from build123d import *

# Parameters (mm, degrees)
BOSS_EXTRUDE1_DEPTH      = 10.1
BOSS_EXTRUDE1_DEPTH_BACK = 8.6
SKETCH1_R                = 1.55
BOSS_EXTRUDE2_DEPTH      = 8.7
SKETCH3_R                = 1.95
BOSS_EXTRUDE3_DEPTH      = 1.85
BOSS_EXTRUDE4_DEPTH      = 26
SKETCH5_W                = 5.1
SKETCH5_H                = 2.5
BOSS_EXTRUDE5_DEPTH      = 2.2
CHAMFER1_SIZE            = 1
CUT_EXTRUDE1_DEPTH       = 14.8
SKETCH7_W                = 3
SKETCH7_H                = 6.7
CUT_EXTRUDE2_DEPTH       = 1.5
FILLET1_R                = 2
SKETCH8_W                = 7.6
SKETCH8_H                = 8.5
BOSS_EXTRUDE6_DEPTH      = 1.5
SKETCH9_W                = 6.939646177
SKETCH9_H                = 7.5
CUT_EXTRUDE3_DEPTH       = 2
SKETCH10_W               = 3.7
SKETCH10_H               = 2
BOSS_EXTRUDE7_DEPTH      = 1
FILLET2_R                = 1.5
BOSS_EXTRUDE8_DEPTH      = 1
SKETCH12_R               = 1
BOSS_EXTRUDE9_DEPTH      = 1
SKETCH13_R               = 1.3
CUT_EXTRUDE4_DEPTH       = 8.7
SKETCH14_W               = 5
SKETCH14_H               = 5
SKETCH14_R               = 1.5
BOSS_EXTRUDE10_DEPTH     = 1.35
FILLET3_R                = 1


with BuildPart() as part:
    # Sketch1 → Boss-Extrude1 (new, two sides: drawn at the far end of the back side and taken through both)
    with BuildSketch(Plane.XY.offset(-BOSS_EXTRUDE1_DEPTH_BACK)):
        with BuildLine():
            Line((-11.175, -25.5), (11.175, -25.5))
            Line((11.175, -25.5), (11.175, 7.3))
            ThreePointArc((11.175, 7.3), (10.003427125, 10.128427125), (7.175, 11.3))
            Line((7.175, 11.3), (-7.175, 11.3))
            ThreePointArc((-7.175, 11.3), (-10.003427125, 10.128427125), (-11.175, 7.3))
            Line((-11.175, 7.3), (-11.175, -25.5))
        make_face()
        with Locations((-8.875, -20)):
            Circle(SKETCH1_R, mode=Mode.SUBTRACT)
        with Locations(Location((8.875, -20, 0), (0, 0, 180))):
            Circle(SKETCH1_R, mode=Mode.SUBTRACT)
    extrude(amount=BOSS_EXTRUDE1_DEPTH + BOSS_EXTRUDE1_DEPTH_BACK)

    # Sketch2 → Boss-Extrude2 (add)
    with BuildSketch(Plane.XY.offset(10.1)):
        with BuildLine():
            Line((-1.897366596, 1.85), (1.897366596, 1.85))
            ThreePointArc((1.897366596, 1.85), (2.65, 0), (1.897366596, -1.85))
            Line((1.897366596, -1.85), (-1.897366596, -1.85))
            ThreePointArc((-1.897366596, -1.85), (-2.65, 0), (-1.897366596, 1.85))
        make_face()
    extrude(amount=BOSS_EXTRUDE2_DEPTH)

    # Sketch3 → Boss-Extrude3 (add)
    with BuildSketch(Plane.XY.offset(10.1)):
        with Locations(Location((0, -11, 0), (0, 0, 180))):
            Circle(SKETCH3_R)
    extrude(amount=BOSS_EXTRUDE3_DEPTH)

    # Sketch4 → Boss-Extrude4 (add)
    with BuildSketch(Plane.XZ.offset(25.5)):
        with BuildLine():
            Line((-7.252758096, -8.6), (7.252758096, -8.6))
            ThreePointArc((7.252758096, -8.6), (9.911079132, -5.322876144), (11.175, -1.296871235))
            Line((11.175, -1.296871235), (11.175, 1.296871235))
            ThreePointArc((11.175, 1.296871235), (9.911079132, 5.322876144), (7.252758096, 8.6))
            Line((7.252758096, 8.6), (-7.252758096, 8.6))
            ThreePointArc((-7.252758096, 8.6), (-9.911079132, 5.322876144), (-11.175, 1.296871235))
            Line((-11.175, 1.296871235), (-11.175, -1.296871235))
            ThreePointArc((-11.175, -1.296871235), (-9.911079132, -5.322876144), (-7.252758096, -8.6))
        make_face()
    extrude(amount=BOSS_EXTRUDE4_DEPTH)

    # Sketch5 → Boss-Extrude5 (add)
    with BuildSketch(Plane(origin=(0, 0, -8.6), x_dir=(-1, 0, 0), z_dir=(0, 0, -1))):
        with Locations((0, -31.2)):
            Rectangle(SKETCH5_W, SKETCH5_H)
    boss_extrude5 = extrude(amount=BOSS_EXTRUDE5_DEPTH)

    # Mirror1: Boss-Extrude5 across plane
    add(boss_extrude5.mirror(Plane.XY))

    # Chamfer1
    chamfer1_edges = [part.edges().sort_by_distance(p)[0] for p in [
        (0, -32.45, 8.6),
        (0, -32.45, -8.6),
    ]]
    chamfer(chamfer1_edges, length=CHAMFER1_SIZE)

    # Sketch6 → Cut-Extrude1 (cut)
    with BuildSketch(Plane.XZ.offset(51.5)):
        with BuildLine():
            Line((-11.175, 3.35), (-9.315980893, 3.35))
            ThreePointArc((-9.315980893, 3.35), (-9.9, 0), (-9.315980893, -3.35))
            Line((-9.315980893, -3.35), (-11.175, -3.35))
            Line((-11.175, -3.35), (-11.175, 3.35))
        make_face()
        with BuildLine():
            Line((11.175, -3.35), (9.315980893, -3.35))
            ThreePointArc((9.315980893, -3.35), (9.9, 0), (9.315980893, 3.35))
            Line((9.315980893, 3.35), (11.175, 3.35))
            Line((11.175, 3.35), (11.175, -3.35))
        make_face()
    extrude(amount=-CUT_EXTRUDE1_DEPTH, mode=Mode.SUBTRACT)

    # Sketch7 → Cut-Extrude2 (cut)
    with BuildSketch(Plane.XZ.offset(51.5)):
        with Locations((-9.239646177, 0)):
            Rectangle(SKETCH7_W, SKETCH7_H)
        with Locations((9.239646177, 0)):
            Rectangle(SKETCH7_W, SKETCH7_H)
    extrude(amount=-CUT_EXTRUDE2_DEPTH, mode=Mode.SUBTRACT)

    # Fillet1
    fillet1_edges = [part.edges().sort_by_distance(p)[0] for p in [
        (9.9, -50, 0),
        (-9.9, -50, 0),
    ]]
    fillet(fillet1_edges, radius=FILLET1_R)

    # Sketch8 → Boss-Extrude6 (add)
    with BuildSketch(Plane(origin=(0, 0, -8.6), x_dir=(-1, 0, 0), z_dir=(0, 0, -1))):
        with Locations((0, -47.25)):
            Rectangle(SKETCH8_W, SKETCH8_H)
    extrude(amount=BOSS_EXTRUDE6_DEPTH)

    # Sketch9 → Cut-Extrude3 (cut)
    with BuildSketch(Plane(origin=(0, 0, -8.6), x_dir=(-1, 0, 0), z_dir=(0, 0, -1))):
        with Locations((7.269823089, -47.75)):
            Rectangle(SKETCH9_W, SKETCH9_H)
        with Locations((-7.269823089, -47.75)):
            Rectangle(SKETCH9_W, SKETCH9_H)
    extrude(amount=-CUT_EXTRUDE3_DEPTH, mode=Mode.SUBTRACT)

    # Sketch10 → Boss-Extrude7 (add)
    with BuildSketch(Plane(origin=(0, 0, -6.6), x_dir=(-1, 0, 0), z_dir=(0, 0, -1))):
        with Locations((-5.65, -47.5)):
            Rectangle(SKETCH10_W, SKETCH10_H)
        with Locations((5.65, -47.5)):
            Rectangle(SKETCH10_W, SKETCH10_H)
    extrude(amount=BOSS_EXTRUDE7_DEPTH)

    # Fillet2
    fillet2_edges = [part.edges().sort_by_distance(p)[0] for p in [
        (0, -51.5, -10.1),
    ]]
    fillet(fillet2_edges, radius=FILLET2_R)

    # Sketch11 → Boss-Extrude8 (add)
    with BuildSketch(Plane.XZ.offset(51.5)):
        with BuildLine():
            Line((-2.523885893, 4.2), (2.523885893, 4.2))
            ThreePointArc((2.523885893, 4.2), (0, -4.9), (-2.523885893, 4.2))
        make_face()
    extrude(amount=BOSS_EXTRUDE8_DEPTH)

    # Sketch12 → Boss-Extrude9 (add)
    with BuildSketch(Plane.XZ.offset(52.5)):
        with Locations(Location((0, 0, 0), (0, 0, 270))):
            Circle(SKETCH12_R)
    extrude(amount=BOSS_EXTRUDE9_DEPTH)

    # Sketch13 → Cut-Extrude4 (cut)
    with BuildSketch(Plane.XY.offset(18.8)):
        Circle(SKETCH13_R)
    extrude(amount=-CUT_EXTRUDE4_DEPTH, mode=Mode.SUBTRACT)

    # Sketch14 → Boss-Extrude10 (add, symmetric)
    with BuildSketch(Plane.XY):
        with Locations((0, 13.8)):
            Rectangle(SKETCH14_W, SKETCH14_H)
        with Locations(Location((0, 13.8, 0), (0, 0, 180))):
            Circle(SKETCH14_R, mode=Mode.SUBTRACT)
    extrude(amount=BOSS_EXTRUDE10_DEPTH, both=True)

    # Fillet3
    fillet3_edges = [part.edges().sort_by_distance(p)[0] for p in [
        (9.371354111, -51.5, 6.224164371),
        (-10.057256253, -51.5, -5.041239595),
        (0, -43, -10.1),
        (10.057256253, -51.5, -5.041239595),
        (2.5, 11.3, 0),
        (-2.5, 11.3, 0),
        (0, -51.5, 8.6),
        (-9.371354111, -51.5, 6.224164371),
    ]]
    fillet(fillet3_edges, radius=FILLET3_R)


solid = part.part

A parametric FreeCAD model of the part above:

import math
import FreeCAD as App
import Part
import Sketcher

V = App.Vector
Q = App.Units.Quantity


def edges_at(feature, points):
    """Names of the edges that pass closest to the given points."""
    edges = feature.Shape.Edges
    near = lambda p: min(range(len(edges)), key=lambda i: edges[i].distToShape(Part.Vertex(*p))[0])
    return sorted({f"Edge{near(p) + 1}" for p in points})

doc = App.newDocument("Part")
params = doc.addObject("Spreadsheet::Sheet", "Params")
for row, (alias, value) in enumerate([
    ("sketch1_radius", "4 mm"),
    ("sketch1_diameter", "3.1 mm"),
    ("sketch1_height", "32.8 mm"),
    ("sketch1_width", "22.35 mm"),
    ("pad1_length", "10.1 mm"),
    ("pad1_length2", "8.6 mm"),
    ("sketch2_radius", "2.65 mm"),
    ("pad2_length", "8.7 mm"),
    ("sketch3_diameter", "3.9 mm"),
    ("pad3_length", "1.85 mm"),
    ("sketch4_radius", "11.25 mm"),
    ("pad4_length", "26 mm"),
    ("sketch5_width", "5.1 mm"),
    ("sketch5_height", "2.5 mm"),
    ("pad5_length", "2.2 mm"),
    ("chamfer_size", "1 mm"),
    ("sketch6_radius", "9.9 mm"),
    ("sketch6_height", "6.7 mm"),
    ("pocket1_length", "14.8 mm"),
    ("sketch7_width", "3 mm"),
    ("sketch7_height", "6.7 mm"),
    ("pocket2_length", "1.5 mm"),
    ("fillet_radius", "2 mm"),
    ("sketch8_width", "7.6 mm"),
    ("sketch8_height", "8.5 mm"),
    ("pad6_length", "1.5 mm"),
    ("sketch9_height", "7.5 mm"),
    ("pocket3_length", "2 mm"),
    ("sketch10_height", "2 mm"),
    ("sketch10_width", "3.7 mm"),
    ("pad7_length", "1 mm"),
    ("fillet2_radius", "1.5 mm"),
    ("sketch11_radius", "4.9 mm"),
    ("pad8_length", "1 mm"),
    ("sketch12_diameter", "2 mm"),
    ("pad9_length", "1 mm"),
    ("sketch13_diameter", "2.6 mm"),
    ("pocket4_length", "8.7 mm"),
    ("sketch14_diameter", "3 mm"),
    ("sketch14_width", "5 mm"),
    ("pad10_length", "2.7 mm"),
    ("fillet3_radius", "1 mm"),
], start=1):
    params.set(f"A{row}", alias)
    params.set(f"B{row}", "=" + value)
    params.setAlias(f"B{row}", alias)

body = doc.addObject("PartDesign::Body", "Body")

sketch1 = body.newObject("Sketcher::SketchObject", "Sketch")
sketch1.AttachmentSupport = (doc.getObject("XY_Plane"), [""])
sketch1.MapMode = "FlatFace"
sketch1.addGeometry([
    Part.LineSegment(V(-11.175, -25.5, 0), V(11.175, -25.5, 0)),
    Part.LineSegment(V(11.175, -25.5, 0), V(11.175, 7.3, 0)),
    Part.ArcOfCircle(Part.Circle(V(7.175, 7.3, 0), V(0, 0, 1), 4), math.radians(0), math.radians(90)),
    Part.LineSegment(V(7.175, 11.3, 0), V(-7.175, 11.3, 0)),
    Part.ArcOfCircle(Part.Circle(V(-7.175, 7.3, 0), V(0, 0, 1), 4), math.radians(90), math.radians(180)),
    Part.LineSegment(V(-11.175, 7.3, 0), V(-11.175, -25.5, 0)),
    Part.Circle(V(-8.875, -20, 0), V(0, 0, 1), 1.55),
    Part.Circle(V(8.875, -20, 0), V(0, 0, 1), 1.55),
], False)
sketch1.addConstraint([
    Sketcher.Constraint("Coincident", 0, 2, 1, 1),
    Sketcher.Constraint("Tangent", 1, 2, 2, 1),
    Sketcher.Constraint("Tangent", 2, 2, 3, 1),
    Sketcher.Constraint("Tangent", 3, 2, 4, 1),
    Sketcher.Constraint("Tangent", 4, 2, 5, 1),
    Sketcher.Constraint("Coincident", 5, 2, 0, 1),
    Sketcher.Constraint("Horizontal", 0),
    Sketcher.Constraint("Vertical", 1),
    Sketcher.Constraint("Horizontal", 3),
    Sketcher.Constraint("Vertical", 5),
    Sketcher.Constraint("Equal", 2, 4),
    Sketcher.Constraint("Equal", 6, 7),
    Sketcher.Constraint("Symmetric", 6, 3, 7, 3, -2),
    Sketcher.Constraint("Radius", 2, Q("4 mm")),
    Sketcher.Constraint("Diameter", 6, Q("3.1 mm")),
    Sketcher.Constraint("DistanceY", 1, 1, 1, 2, Q("32.8 mm")),
    Sketcher.Constraint("DistanceY", 6, 3, -1, 1, Q("20 mm")),
    Sketcher.Constraint("DistanceX", 0, 1, 0, 2, Q("22.35 mm")),
    Sketcher.Constraint("DistanceY", -1, 1, 2, 3, Q("7.3 mm")),
    Sketcher.Constraint("DistanceX", 6, 3, 4, 3, Q("1.7 mm")),
    Sketcher.Constraint("DistanceX", 2, 3, 7, 3, Q("1.7 mm")),
])
sketch1.setExpression("Constraints[13]", "Params.sketch1_radius")
sketch1.setExpression("Constraints[14]", "Params.sketch1_diameter")
sketch1.setExpression("Constraints[15]", "Params.sketch1_height")
sketch1.setExpression("Constraints[17]", "Params.sketch1_width")
pad1 = body.newObject("PartDesign::Pad", "Pad")
pad1.Profile = sketch1
pad1.Type = "TwoLengths"
pad1.setExpression("Length", "Params.pad1_length")
pad1.setExpression("Length2", "Params.pad1_length2")

sketch2 = body.newObject("Sketcher::SketchObject", "Sketch001")
sketch2.AttachmentSupport = (doc.getObject("XY_Plane"), [""])
sketch2.MapMode = "FlatFace"
sketch2.AttachmentOffset = App.Placement(V(0, 0, 10.1), App.Rotation())
sketch2.addGeometry([
    Part.LineSegment(V(1.897367, 1.85, 0), V(-1.897367, 1.85, 0)),
    Part.ArcOfCircle(Part.Circle(V(0, 0, 0), V(0, 0, 1), 2.65), math.radians(135.724178), math.radians(224.275822)),
    Part.LineSegment(V(-1.897367, -1.85, 0), V(1.897367, -1.85, 0)),
    Part.ArcOfCircle(Part.Circle(V(0, 0, 0), V(0, 0, 1), 2.65), math.radians(-44.275822), math.radians(44.275822)),
], False)
sketch2.addConstraint([
    Sketcher.Constraint("Coincident", 0, 2, 1, 1),
    Sketcher.Constraint("Coincident", 1, 2, 2, 1),
    Sketcher.Constraint("Coincident", 2, 2, 3, 1),
    Sketcher.Constraint("Coincident", 3, 2, 0, 1),
    Sketcher.Constraint("Horizontal", 0),
    Sketcher.Constraint("Horizontal", 2),
    Sketcher.Constraint("Coincident", 1, 3, -1, 1),
    Sketcher.Constraint("Coincident", 3, 3, -1, 1),
    Sketcher.Constraint("Equal", 1, 3),
    Sketcher.Constraint("Vertical", 0, 2, 1, 2),
    Sketcher.Constraint("Radius", 1, Q("2.65 mm")),
    Sketcher.Constraint("DistanceY", 1, 2, 0, 2, Q("3.7 mm")),
])
sketch2.setExpression("Constraints[10]", "Params.sketch2_radius")
pad2 = body.newObject("PartDesign::Pad", "Pad001")
pad2.Profile = sketch2
pad2.setExpression("Length", "Params.pad2_length")

sketch3 = body.newObject("Sketcher::SketchObject", "Sketch002")
sketch3.AttachmentSupport = (doc.getObject("XY_Plane"), [""])
sketch3.MapMode = "FlatFace"
sketch3.AttachmentOffset = App.Placement(V(0, 0, 10.1), App.Rotation())
sketch3.addGeometry(Part.Circle(V(0, -11, 0), V(0, 0, 1), 1.95), False)
sketch3.addConstraint([
    Sketcher.Constraint("PointOnObject", 0, 3, -2),
    Sketcher.Constraint("Diameter", 0, Q("3.9 mm")),
    Sketcher.Constraint("DistanceY", 0, 3, -1, 1, Q("11 mm")),
])
sketch3.setExpression("Constraints[1]", "Params.sketch3_diameter")
pad3 = body.newObject("PartDesign::Pad", "Pad002")
pad3.Profile = sketch3
pad3.setExpression("Length", "Params.pad3_length")

sketch4 = body.newObject("Sketcher::SketchObject", "Sketch003")
sketch4.AttachmentSupport = (doc.getObject("XZ_Plane"), [""])
sketch4.MapMode = "FlatFace"
sketch4.AttachmentOffset = App.Placement(V(0, 0, 25.5), App.Rotation())
sketch4.addGeometry([
    Part.LineSegment(V(-7.252758, -8.6, 0), V(7.252758, -8.6, 0)),
    Part.ArcOfCircle(Part.Circle(V(0, 0, 0), V(0, 0, 1), 11.25), math.radians(-49.857593), math.radians(-6.619628)),
    Part.LineSegment(V(11.175, -1.296871, 0), V(11.175, 1.296871, 0)),
    Part.ArcOfCircle(Part.Circle(V(0, 0, 0), V(0, 0, 1), 11.25), math.radians(6.619628), math.radians(49.857593)),
    Part.LineSegment(V(7.252758, 8.6, 0), V(-7.252758, 8.6, 0)),
    Part.ArcOfCircle(Part.Circle(V(0, 0, 0), V(0, 0, 1), 11.25), math.radians(130.142407), math.radians(173.380372)),
    Part.LineSegment(V(-11.175, 1.296871, 0), V(-11.175, -1.296871, 0)),
    Part.ArcOfCircle(Part.Circle(V(0, 0, 0), V(0, 0, 1), 11.25), math.radians(-173.380372), math.radians(-130.142407)),
], False)
sketch4.addConstraint([
    Sketcher.Constraint("Coincident", 0, 2, 1, 1),
    Sketcher.Constraint("Coincident", 1, 2, 2, 1),
    Sketcher.Constraint("Coincident", 2, 2, 3, 1),
    Sketcher.Constraint("Coincident", 3, 2, 4, 1),
    Sketcher.Constraint("Coincident", 4, 2, 5, 1),
    Sketcher.Constraint("Coincident", 5, 2, 6, 1),
    Sketcher.Constraint("Coincident", 6, 2, 7, 1),
    Sketcher.Constraint("Coincident", 7, 2, 0, 1),
    Sketcher.Constraint("Horizontal", 0),
    Sketcher.Constraint("Vertical", 2),
    Sketcher.Constraint("Horizontal", 4),
    Sketcher.Constraint("Vertical", 6),
    Sketcher.Constraint("Coincident", 1, 3, -1, 1),
    Sketcher.Constraint("Coincident", 3, 3, -1, 1),
    Sketcher.Constraint("Coincident", 5, 3, -1, 1),
    Sketcher.Constraint("Coincident", 7, 3, -1, 1),
    Sketcher.Constraint("Equal", 1, 3),
    Sketcher.Constraint("Equal", 3, 5),
    Sketcher.Constraint("Equal", 5, 7),
    Sketcher.Constraint("Horizontal", 2, 2, 5, 2),
    Sketcher.Constraint("Vertical", 0, 2, 3, 2),
    Sketcher.Constraint("Radius", 1, Q("11.25 mm")),
    Sketcher.Constraint("DistanceY", 0, 2, -1, 1, Q("8.6 mm")),
    Sketcher.Constraint("DistanceX", -1, 1, 1, 2, Q("11.175 mm")),
])
sketch4.setExpression("Constraints[21]", "Params.sketch4_radius")
pad4 = body.newObject("PartDesign::Pad", "Pad003")
pad4.Profile = sketch4
pad4.setExpression("Length", "Params.pad4_length")

sketch5 = body.newObject("Sketcher::SketchObject", "Sketch004")
sketch5.AttachmentSupport = (doc.getObject("XY_Plane"), [""])
sketch5.MapMode = "FlatFace"
sketch5.AttachmentOffset = App.Placement(V(0, 0, -8.6), App.Rotation())
sketch5.addGeometry([
    Part.LineSegment(V(2.55, -29.95, 0), V(2.55, -32.45, 0)),
    Part.LineSegment(V(2.55, -32.45, 0), V(-2.55, -32.45, 0)),
    Part.LineSegment(V(-2.55, -32.45, 0), V(-2.55, -29.95, 0)),
    Part.LineSegment(V(-2.55, -29.95, 0), V(2.55, -29.95, 0)),
], False)
sketch5.addConstraint([
    Sketcher.Constraint("Coincident", 0, 2, 1, 1),
    Sketcher.Constraint("Coincident", 1, 2, 2, 1),
    Sketcher.Constraint("Coincident", 2, 2, 3, 1),
    Sketcher.Constraint("Coincident", 3, 2, 0, 1),
    Sketcher.Constraint("Vertical", 0),
    Sketcher.Constraint("Horizontal", 1),
    Sketcher.Constraint("Vertical", 2),
    Sketcher.Constraint("Horizontal", 3),
    Sketcher.Constraint("DistanceX", 1, 2, 1, 1, Q("5.1 mm")),
    Sketcher.Constraint("DistanceY", 0, 2, 0, 1, Q("2.5 mm")),
    Sketcher.Constraint("DistanceX", -1, 1, 0, 2, Q("2.55 mm")),
    Sketcher.Constraint("DistanceY", 0, 2, -1, 1, Q("32.45 mm")),
])
sketch5.setExpression("Constraints[8]", "Params.sketch5_width")
sketch5.setExpression("Constraints[9]", "Params.sketch5_height")
pad5 = body.newObject("PartDesign::Pad", "Pad004")
pad5.Profile = sketch5
pad5.setExpression("Length", "Params.pad5_length")
pad5.Reversed = True
doc.recompute()

mirrored = body.newObject("PartDesign::Mirrored", "Mirrored")
mirrored.Originals = [pad5]
mirrored.MirrorPlane = (doc.getObject("XY_Plane"), [""])
body.Tip = mirrored
doc.recompute()

chamfer = body.newObject("PartDesign::Chamfer", "Chamfer")
chamfer.Base = (mirrored, edges_at(mirrored, [(0, -32.45, 8.6), (0, -32.45, -8.6)]))
chamfer.setExpression("Size", "Params.chamfer_size")

sketch6 = body.newObject("Sketcher::SketchObject", "Sketch005")
sketch6.AttachmentSupport = (doc.getObject("XZ_Plane"), [""])
sketch6.MapMode = "FlatFace"
sketch6.AttachmentOffset = App.Placement(V(0, 0, 51.5), App.Rotation())
sketch6.addGeometry([
    Part.LineSegment(V(-9.315981, 3.35, 0), V(-11.175, 3.35, 0)),
    Part.LineSegment(V(-11.175, 3.35, 0), V(-11.175, -3.35, 0)),
    Part.LineSegment(V(-11.175, -3.35, 0), V(-9.315981, -3.35, 0)),
    Part.ArcOfCircle(Part.Circle(V(0, 0, 0), V(0, 0, 1), 9.9), math.radians(160.221561), math.radians(199.778439)),
    Part.LineSegment(V(9.315981, -3.35, 0), V(11.175, -3.35, 0)),
    Part.LineSegment(V(11.175, -3.35, 0), V(11.175, 3.35, 0)),
    Part.LineSegment(V(11.175, 3.35, 0), V(9.315981, 3.35, 0)),
    Part.ArcOfCircle(Part.Circle(V(0, 0, 0), V(0, 0, 1), 9.9), math.radians(-19.778439), math.radians(19.778439)),
], False)
sketch6.addConstraint([
    Sketcher.Constraint("Coincident", 0, 2, 1, 1),
    Sketcher.Constraint("Coincident", 1, 2, 2, 1),
    Sketcher.Constraint("Coincident", 2, 2, 3, 2),
    Sketcher.Constraint("Coincident", 3, 1, 0, 1),
    Sketcher.Constraint("Coincident", 4, 2, 5, 1),
    Sketcher.Constraint("Coincident", 5, 2, 6, 1),
    Sketcher.Constraint("Coincident", 6, 2, 7, 2),
    Sketcher.Constraint("Coincident", 7, 1, 4, 1),
    Sketcher.Constraint("Horizontal", 0),
    Sketcher.Constraint("Vertical", 1),
    Sketcher.Constraint("Horizontal", 2),
    Sketcher.Constraint("Horizontal", 4),
    Sketcher.Constraint("Vertical", 5),
    Sketcher.Constraint("Horizontal", 6),
    Sketcher.Constraint("Coincident", 3, 3, -1, 1),
    Sketcher.Constraint("Coincident", 7, 3, -1, 1),
    Sketcher.Constraint("Equal", 3, 7),
    Sketcher.Constraint("Symmetric", 0, 2, 4, 2, -1, 1),
    Sketcher.Constraint("Horizontal", 2, 2, 4, 2),
    Sketcher.Constraint("Horizontal", 3, 1, 5, 2),
    Sketcher.Constraint("Radius", 3, Q("9.9 mm")),
    Sketcher.Constraint("DistanceY", 1, 2, 1, 1, Q("6.7 mm")),
    Sketcher.Constraint("DistanceX", 1, 2, 4, 2, Q("22.35 mm")),
])
sketch6.setExpression("Constraints[20]", "Params.sketch6_radius")
sketch6.setExpression("Constraints[21]", "Params.sketch6_height")
pocket1 = body.newObject("PartDesign::Pocket", "Pocket")
pocket1.Profile = sketch6
pocket1.setExpression("Length", "Params.pocket1_length")

sketch7 = body.newObject("Sketcher::SketchObject", "Sketch006")
sketch7.AttachmentSupport = (doc.getObject("XZ_Plane"), [""])
sketch7.MapMode = "FlatFace"
sketch7.AttachmentOffset = App.Placement(V(0, 0, 51.5), App.Rotation())
sketch7.addGeometry([
    Part.LineSegment(V(-10.739646, 3.35, 0), V(-10.739646, -3.35, 0)),
    Part.LineSegment(V(-10.739646, -3.35, 0), V(-7.739646, -3.35, 0)),
    Part.LineSegment(V(-7.739646, -3.35, 0), V(-7.739646, 3.35, 0)),
    Part.LineSegment(V(-7.739646, 3.35, 0), V(-10.739646, 3.35, 0)),
    Part.LineSegment(V(7.739646, 3.35, 0), V(7.739646, -3.35, 0)),
    Part.LineSegment(V(7.739646, -3.35, 0), V(10.739646, -3.35, 0)),
    Part.LineSegment(V(10.739646, -3.35, 0), V(10.739646, 3.35, 0)),
    Part.LineSegment(V(10.739646, 3.35, 0), V(7.739646, 3.35, 0)),
], False)
sketch7.addConstraint([
    Sketcher.Constraint("Coincident", 0, 2, 1, 1),
    Sketcher.Constraint("Coincident", 1, 2, 2, 1),
    Sketcher.Constraint("Coincident", 2, 2, 3, 1),
    Sketcher.Constraint("Coincident", 3, 2, 0, 1),
    Sketcher.Constraint("Coincident", 4, 2, 5, 1),
    Sketcher.Constraint("Coincident", 5, 2, 6, 1),
    Sketcher.Constraint("Coincident", 6, 2, 7, 1),
    Sketcher.Constraint("Coincident", 7, 2, 4, 1),
    Sketcher.Constraint("Vertical", 0),
    Sketcher.Constraint("Horizontal", 1),
    Sketcher.Constraint("Vertical", 2),
    Sketcher.Constraint("Horizontal", 3),
    Sketcher.Constraint("Vertical", 4),
    Sketcher.Constraint("Horizontal", 5),
    Sketcher.Constraint("Vertical", 6),
    Sketcher.Constraint("Horizontal", 7),
    Sketcher.Constraint("Symmetric", 2, 2, 4, 2, -1, 1),
    Sketcher.Constraint("Symmetric", 0, 2, 6, 2, -1, 1),
    Sketcher.Constraint("Horizontal", 1, 2, 4, 2),
    Sketcher.Constraint("DistanceX", 1, 1, 1, 2, Q("3 mm")),
    Sketcher.Constraint("DistanceY", 0, 2, 0, 1, Q("6.7 mm")),
    Sketcher.Constraint("DistanceX", 0, 2, -1, 1, Q("10.739646 mm")),
])
sketch7.setExpression("Constraints[19]", "Params.sketch7_width")
sketch7.setExpression("Constraints[20]", "Params.sketch7_height")
pocket2 = body.newObject("PartDesign::Pocket", "Pocket001")
pocket2.Profile = sketch7
pocket2.setExpression("Length", "Params.pocket2_length")
doc.recompute()

fillet = body.newObject("PartDesign::Fillet", "Fillet")
fillet.Base = (pocket2, edges_at(pocket2, [(9.9, -50, 0), (-9.9, -50, 0)]))
fillet.setExpression("Radius", "Params.fillet_radius")

sketch8 = body.newObject("Sketcher::SketchObject", "Sketch007")
sketch8.AttachmentSupport = (doc.getObject("XY_Plane"), [""])
sketch8.MapMode = "FlatFace"
sketch8.AttachmentOffset = App.Placement(V(0, 0, -8.6), App.Rotation())
sketch8.addGeometry([
    Part.LineSegment(V(3.8, -43, 0), V(3.8, -51.5, 0)),
    Part.LineSegment(V(3.8, -51.5, 0), V(-3.8, -51.5, 0)),
    Part.LineSegment(V(-3.8, -51.5, 0), V(-3.8, -43, 0)),
    Part.LineSegment(V(-3.8, -43, 0), V(3.8, -43, 0)),
], False)
sketch8.addConstraint([
    Sketcher.Constraint("Coincident", 0, 2, 1, 1),
    Sketcher.Constraint("Coincident", 1, 2, 2, 1),
    Sketcher.Constraint("Coincident", 2, 2, 3, 1),
    Sketcher.Constraint("Coincident", 3, 2, 0, 1),
    Sketcher.Constraint("Vertical", 0),
    Sketcher.Constraint("Horizontal", 1),
    Sketcher.Constraint("Vertical", 2),
    Sketcher.Constraint("Horizontal", 3),
    Sketcher.Constraint("DistanceX", 1, 2, 1, 1, Q("7.6 mm")),
    Sketcher.Constraint("DistanceY", 0, 2, 0, 1, Q("8.5 mm")),
    Sketcher.Constraint("DistanceY", 2, 2, -1, 1, Q("43 mm")),
    Sketcher.Constraint("DistanceX", -1, 1, 0, 2, Q("3.8 mm")),
])
sketch8.setExpression("Constraints[8]", "Params.sketch8_width")
sketch8.setExpression("Constraints[9]", "Params.sketch8_height")
pad6 = body.newObject("PartDesign::Pad", "Pad005")
pad6.Profile = sketch8
pad6.setExpression("Length", "Params.pad6_length")
pad6.Reversed = True

sketch9 = body.newObject("Sketcher::SketchObject", "Sketch008")
sketch9.AttachmentSupport = (doc.getObject("XY_Plane"), [""])
sketch9.MapMode = "FlatFace"
sketch9.AttachmentOffset = App.Placement(V(0, 0, -8.6), App.Rotation())
sketch9.addGeometry([
    Part.LineSegment(V(-3.8, -44, 0), V(-3.8, -51.5, 0)),
    Part.LineSegment(V(-3.8, -51.5, 0), V(-10.739646, -51.5, 0)),
    Part.LineSegment(V(-10.739646, -51.5, 0), V(-10.739646, -44, 0)),
    Part.LineSegment(V(-10.739646, -44, 0), V(-3.8, -44, 0)),
    Part.LineSegment(V(10.739646, -44, 0), V(10.739646, -51.5, 0)),
    Part.LineSegment(V(10.739646, -51.5, 0), V(3.8, -51.5, 0)),
    Part.LineSegment(V(3.8, -51.5, 0), V(3.8, -44, 0)),
    Part.LineSegment(V(3.8, -44, 0), V(10.739646, -44, 0)),
], False)
sketch9.addConstraint([
    Sketcher.Constraint("Coincident", 0, 2, 1, 1),
    Sketcher.Constraint("Coincident", 1, 2, 2, 1),
    Sketcher.Constraint("Coincident", 2, 2, 3, 1),
    Sketcher.Constraint("Coincident", 3, 2, 0, 1),
    Sketcher.Constraint("Coincident", 4, 2, 5, 1),
    Sketcher.Constraint("Coincident", 5, 2, 6, 1),
    Sketcher.Constraint("Coincident", 6, 2, 7, 1),
    Sketcher.Constraint("Coincident", 7, 2, 4, 1),
    Sketcher.Constraint("Vertical", 0),
    Sketcher.Constraint("Horizontal", 1),
    Sketcher.Constraint("Vertical", 2),
    Sketcher.Constraint("Horizontal", 3),
    Sketcher.Constraint("Vertical", 4),
    Sketcher.Constraint("Horizontal", 5),
    Sketcher.Constraint("Vertical", 6),
    Sketcher.Constraint("Horizontal", 7),
    Sketcher.Constraint("Symmetric", 1, 2, 4, 2, -2),
    Sketcher.Constraint("Symmetric", 3, 2, 6, 2, -2),
    Sketcher.Constraint("DistanceY", 0, 2, 0, 1, Q("7.5 mm")),
    Sketcher.Constraint("DistanceY", 2, 2, -1, 1, Q("44 mm")),
    Sketcher.Constraint("DistanceX", 0, 2, -1, 1, Q("3.8 mm")),
    Sketcher.Constraint("DistanceX", 1, 2, 1, 1, Q("6.939646 mm")),
])
sketch9.setExpression("Constraints[18]", "Params.sketch9_height")
pocket3 = body.newObject("PartDesign::Pocket", "Pocket002")
pocket3.Profile = sketch9
pocket3.setExpression("Length", "Params.pocket3_length")
pocket3.Reversed = True

sketch10 = body.newObject("Sketcher::SketchObject", "Sketch009")
sketch10.AttachmentSupport = (doc.getObject("XY_Plane"), [""])
sketch10.MapMode = "FlatFace"
sketch10.AttachmentOffset = App.Placement(V(0, 0, -6.6), App.Rotation())
sketch10.addGeometry([
    Part.LineSegment(V(7.5, -46.5, 0), V(7.5, -48.5, 0)),
    Part.LineSegment(V(7.5, -48.5, 0), V(3.8, -48.5, 0)),
    Part.LineSegment(V(3.8, -48.5, 0), V(3.8, -46.5, 0)),
    Part.LineSegment(V(3.8, -46.5, 0), V(7.5, -46.5, 0)),
    Part.LineSegment(V(-3.8, -46.5, 0), V(-3.8, -48.5, 0)),
    Part.LineSegment(V(-3.8, -48.5, 0), V(-7.5, -48.5, 0)),
    Part.LineSegment(V(-7.5, -48.5, 0), V(-7.5, -46.5, 0)),
    Part.LineSegment(V(-7.5, -46.5, 0), V(-3.8, -46.5, 0)),
], False)
sketch10.addConstraint([
    Sketcher.Constraint("Coincident", 0, 2, 1, 1),
    Sketcher.Constraint("Coincident", 1, 2, 2, 1),
    Sketcher.Constraint("Coincident", 2, 2, 3, 1),
    Sketcher.Constraint("Coincident", 3, 2, 0, 1),
    Sketcher.Constraint("Coincident", 4, 2, 5, 1),
    Sketcher.Constraint("Coincident", 5, 2, 6, 1),
    Sketcher.Constraint("Coincident", 6, 2, 7, 1),
    Sketcher.Constraint("Coincident", 7, 2, 4, 1),
    Sketcher.Constraint("Vertical", 0),
    Sketcher.Constraint("Horizontal", 1),
    Sketcher.Constraint("Vertical", 2),
    Sketcher.Constraint("Horizontal", 3),
    Sketcher.Constraint("Vertical", 4),
    Sketcher.Constraint("Horizontal", 5),
    Sketcher.Constraint("Vertical", 6),
    Sketcher.Constraint("Horizontal", 7),
    Sketcher.Constraint("Symmetric", 1, 2, 4, 2, -2),
    Sketcher.Constraint("Symmetric", 3, 2, 6, 2, -2),
    Sketcher.Constraint("DistanceY", 0, 2, 0, 1, Q("2 mm")),
    Sketcher.Constraint("DistanceX", 1, 2, 1, 1, Q("3.7 mm")),
    Sketcher.Constraint("DistanceX", 5, 2, 0, 2, Q("15 mm")),
    Sketcher.Constraint("DistanceY", 0, 2, -1, 1, Q("48.5 mm")),
])
sketch10.setExpression("Constraints[18]", "Params.sketch10_height")
sketch10.setExpression("Constraints[19]", "Params.sketch10_width")
pad7 = body.newObject("PartDesign::Pad", "Pad006")
pad7.Profile = sketch10
pad7.setExpression("Length", "Params.pad7_length")
pad7.Reversed = True
doc.recompute()

fillet2 = body.newObject("PartDesign::Fillet", "Fillet001")
fillet2.Base = (pad7, edges_at(pad7, [(0, -51.5, -10.1)]))
fillet2.setExpression("Radius", "Params.fillet2_radius")

sketch11 = body.newObject("Sketcher::SketchObject", "Sketch010")
sketch11.AttachmentSupport = (doc.getObject("XZ_Plane"), [""])
sketch11.MapMode = "FlatFace"
sketch11.AttachmentOffset = App.Placement(V(0, 0, 51.5), App.Rotation())
sketch11.addGeometry([
    Part.LineSegment(V(2.523886, 4.2, 0), V(-2.523886, 4.2, 0)),
    Part.ArcOfCircle(Part.Circle(V(0, 0, 0), V(0, 0, 1), 4.9), math.radians(121.002719), math.radians(418.997281)),
], False)
sketch11.addConstraint([
    Sketcher.Constraint("Coincident", 0, 1, 1, 2),
    Sketcher.Constraint("Coincident", 1, 1, 0, 2),
    Sketcher.Constraint("Horizontal", 0),
    Sketcher.Constraint("Coincident", 1, 3, -1, 1),
    Sketcher.Constraint("Radius", 1, Q("4.9 mm")),
    Sketcher.Constraint("DistanceY", -1, 1, 0, 1, Q("4.2 mm")),
])
sketch11.setExpression("Constraints[4]", "Params.sketch11_radius")
pad8 = body.newObject("PartDesign::Pad", "Pad007")
pad8.Profile = sketch11
pad8.setExpression("Length", "Params.pad8_length")

sketch12 = body.newObject("Sketcher::SketchObject", "Sketch011")
sketch12.AttachmentSupport = (doc.getObject("XZ_Plane"), [""])
sketch12.MapMode = "FlatFace"
sketch12.AttachmentOffset = App.Placement(V(0, 0, 52.5), App.Rotation())
sketch12.addGeometry(Part.Circle(V(0, 0, 0), V(0, 0, 1), 1), False)
sketch12.addConstraint([
    Sketcher.Constraint("Coincident", 0, 3, -1, 1),
    Sketcher.Constraint("Diameter", 0, Q("2 mm")),
])
sketch12.setExpression("Constraints[1]", "Params.sketch12_diameter")
pad9 = body.newObject("PartDesign::Pad", "Pad008")
pad9.Profile = sketch12
pad9.setExpression("Length", "Params.pad9_length")

sketch13 = body.newObject("Sketcher::SketchObject", "Sketch012")
sketch13.AttachmentSupport = (doc.getObject("XY_Plane"), [""])
sketch13.MapMode = "FlatFace"
sketch13.AttachmentOffset = App.Placement(V(0, 0, 18.8), App.Rotation())
sketch13.addGeometry(Part.Circle(V(0, 0, 0), V(0, 0, 1), 1.3), False)
sketch13.addConstraint([
    Sketcher.Constraint("Coincident", 0, 3, -1, 1),
    Sketcher.Constraint("Diameter", 0, Q("2.6 mm")),
])
sketch13.setExpression("Constraints[1]", "Params.sketch13_diameter")
pocket4 = body.newObject("PartDesign::Pocket", "Pocket003")
pocket4.Profile = sketch13
pocket4.setExpression("Length", "Params.pocket4_length")

sketch14 = body.newObject("Sketcher::SketchObject", "Sketch013")
sketch14.AttachmentSupport = (doc.getObject("XY_Plane"), [""])
sketch14.MapMode = "FlatFace"
sketch14.addGeometry([
    Part.LineSegment(V(-2.5, 16.3, 0), V(-2.5, 11.3, 0)),
    Part.LineSegment(V(-2.5, 11.3, 0), V(2.5, 11.3, 0)),
    Part.LineSegment(V(2.5, 11.3, 0), V(2.5, 16.3, 0)),
    Part.LineSegment(V(2.5, 16.3, 0), V(-2.5, 16.3, 0)),
    Part.Circle(V(0, 13.8, 0), V(0, 0, 1), 1.5),
], False)
sketch14.addConstraint([
    Sketcher.Constraint("Coincident", 0, 2, 1, 1),
    Sketcher.Constraint("Coincident", 1, 2, 2, 1),
    Sketcher.Constraint("Coincident", 2, 2, 3, 1),
    Sketcher.Constraint("Coincident", 3, 2, 0, 1),
    Sketcher.Constraint("Vertical", 0),
    Sketcher.Constraint("Horizontal", 1),
    Sketcher.Constraint("Vertical", 2),
    Sketcher.Constraint("Horizontal", 3),
    Sketcher.Constraint("PointOnObject", 4, 3, -2),
    Sketcher.Constraint("Equal", 3, 0),
    Sketcher.Constraint("Diameter", 4, Q("3 mm")),
    Sketcher.Constraint("DistanceX", 1, 1, 1, 2, Q("5 mm")),
    Sketcher.Constraint("DistanceY", -1, 1, 4, 3, Q("13.8 mm")),
    Sketcher.Constraint("DistanceX", 0, 2, -1, 1, Q("2.5 mm")),
    Sketcher.Constraint("DistanceY", -1, 1, 0, 2, Q("11.3 mm")),
])
sketch14.setExpression("Constraints[10]", "Params.sketch14_diameter")
sketch14.setExpression("Constraints[11]", "Params.sketch14_width")
pad10 = body.newObject("PartDesign::Pad", "Pad009")
pad10.Profile = sketch14
pad10.setExpression("Length", "Params.pad10_length")
pad10.Midplane = True
doc.recompute()

fillet3 = body.newObject("PartDesign::Fillet", "Fillet002")
fillet3.Base = (pad10, edges_at(pad10, [
    (9.371, -51.5, 6.224),
    (-10.057, -51.5, -5.041),
    (0, -43, -10.1),
    (10.057, -51.5, -5.041),
    (2.5, 11.3, 0),
    (-2.5, 11.3, 0),
    (0, -51.5, 8.6),
    (-9.371, -51.5, 6.224),
]))
fillet3.setExpression("Radius", "Params.fillet3_radius")

doc.recompute()
